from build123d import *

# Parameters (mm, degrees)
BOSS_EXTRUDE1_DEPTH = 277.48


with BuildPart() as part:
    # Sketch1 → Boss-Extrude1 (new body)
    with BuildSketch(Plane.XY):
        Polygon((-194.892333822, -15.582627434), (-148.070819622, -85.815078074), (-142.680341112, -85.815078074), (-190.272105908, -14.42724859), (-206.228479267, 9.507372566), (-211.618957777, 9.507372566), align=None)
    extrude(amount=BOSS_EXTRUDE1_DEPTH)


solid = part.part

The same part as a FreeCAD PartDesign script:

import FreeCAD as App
import Part
import Sketcher

V = App.Vector
Q = App.Units.Quantity


def add_polygon(sketch, points):
    """Adds a closed chain of lines whose ends are joined by coincident constraints."""
    first, n = sketch.GeometryCount, len(points)
    for a, b in zip(points, points[1:] + points[:1]):
        sketch.addGeometry(Part.LineSegment(App.Vector(*a, 0), App.Vector(*b, 0)), False)
    for i in range(n):
        sketch.addConstraint(Sketcher.Constraint("Coincident", first + i, 2, first + (i + 1) % n, 1))

doc = App.newDocument("Part")
body = doc.addObject("PartDesign::Body", "Body")

sketch1 = body.newObject("Sketcher::SketchObject", "Sketch")
sketch1.AttachmentSupport = (doc.getObject("XY_Plane"), [""])
sketch1.MapMode = "FlatFace"
add_polygon(sketch1, [(-195, -16), (-148, -86), (-143, -86), (-206, 10), (-212, 10)])
sketch1.addConstraint([
    Sketcher.Constraint("Horizontal", 1),
    Sketcher.Constraint("Horizontal", 3),
    Sketcher.Constraint("Parallel", 0, 2),
    Sketcher.Constraint("Parallel", 2, 4),
    Sketcher.Constraint("Angle", 0, Q("-56.31 deg")),
    Sketcher.Constraint("DistanceY", 4, 2, 2, 2, Q("25.09 mm")),
    Sketcher.Constraint("DistanceX", 1, 1, 1, 2, Q("5.390479 mm")),
    Sketcher.Constraint("DistanceX", 0, 2, -1, 1, Q("148.07082 mm")),
    Sketcher.Constraint("DistanceY", 0, 2, -1, 1, Q("85.815078 mm")),
    Sketcher.Constraint("DistanceX", 2, 2, -1, 1, Q("206.228479 mm")),
])
pad1 = body.newObject("PartDesign::Pad", "Pad")
pad1.Profile = sketch1
pad1.Length = 277.48

doc.recompute()
